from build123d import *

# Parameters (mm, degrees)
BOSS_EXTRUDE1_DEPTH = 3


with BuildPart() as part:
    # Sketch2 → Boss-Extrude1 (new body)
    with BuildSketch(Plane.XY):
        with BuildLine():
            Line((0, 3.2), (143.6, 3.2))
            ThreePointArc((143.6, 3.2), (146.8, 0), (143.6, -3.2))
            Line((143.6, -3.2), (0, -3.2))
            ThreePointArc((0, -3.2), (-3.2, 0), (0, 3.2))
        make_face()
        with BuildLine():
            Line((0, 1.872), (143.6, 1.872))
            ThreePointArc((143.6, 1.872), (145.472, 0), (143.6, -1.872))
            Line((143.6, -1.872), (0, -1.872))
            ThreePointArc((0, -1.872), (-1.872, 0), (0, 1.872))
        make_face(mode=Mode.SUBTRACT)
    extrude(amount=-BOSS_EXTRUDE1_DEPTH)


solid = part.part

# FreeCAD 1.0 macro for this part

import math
import FreeCAD as App
import Part
import Sketcher

V = App.Vector

doc = App.newDocument("Part")
body = doc.addObject("PartDesign::Body", "Body")

sketch1 = doc.addObject("Sketcher::SketchObject", "Sketch")
body.addObject(sketch1)
sketch1.AttachmentSupport = (doc.XY_Plane, [""])
sketch1.MapMode = "FlatFace"
sketch1.addGeometry([
    Part.LineSegment(V(143.6, 3.2, 0), V(0, 3.2, 0)),
    Part.ArcOfCircle(Part.Circle(V(0, 0, 0), V(0, 0, 1), 3.2), math.radians(90), math.radians(270)),
    Part.LineSegment(V(0, -3.2, 0), V(143.6, -3.2, 0)),
    Part.ArcOfCircle(Part.Circle(V(143.6, 0, 0), V(0, 0, 1), 3.2), math.radians(-90), math.radians(90)),
    Part.LineSegment(V(0, 1.872, 0), V(143.6, 1.872, 0)),
    Part.ArcOfCircle(Part.Circle(V(143.6, 0, 0), V(0, 0, 1), 1.872), math.radians(-90), math.radians(90)),
    Part.LineSegment(V(143.6, -1.872, 0), V(0, -1.872, 0)),
    Part.ArcOfCircle(Part.Circle(V(0, 0, 0), V(0, 0, 1), 1.872), math.radians(90), math.radians(270)),
], False)
sketch1.addConstraint([
    Sketcher.Constraint("Tangent", 0, 2, 1, 1),
    Sketcher.Constraint("Tangent", 1, 2, 2, 1),
    Sketcher.Constraint("Tangent", 2, 2, 3, 1),
    Sketcher.Constraint("Tangent", 3, 2, 0, 1),
    Sketcher.Constraint("Tangent", 4, 2, 5, 2),
    Sketcher.Constraint("Tangent", 5, 1, 6, 1),
    Sketcher.Constraint("Tangent", 6, 2, 7, 2),
    Sketcher.Constraint("Tangent", 7, 1, 4, 1),
    Sketcher.Constraint("Horizontal", 0),
    Sketcher.Constraint("Horizontal", 2),
    Sketcher.Constraint("Horizontal", 4),
    Sketcher.Constraint("Horizontal", 6),
    Sketcher.Constraint("Coincident", 1, 3, -1, 1),
    Sketcher.Constraint("Coincident", 7, 3, -1, 1),
    Sketcher.Constraint("Vertical", 5, 3, 2, 2),
    Sketcher.Constraint("Radius", 1, 3.2),
    Sketcher.Constraint("DistanceX", 0, 2, 0, 1, 143.6),
    Sketcher.Constraint("Radius", 5, 1.872),
])
pad1 = doc.addObject("PartDesign::Pad", "Pad")
body.addObject(pad1)
pad1.Profile = sketch1
pad1.Length = 3
pad1.Reversed = True

doc.recompute()
